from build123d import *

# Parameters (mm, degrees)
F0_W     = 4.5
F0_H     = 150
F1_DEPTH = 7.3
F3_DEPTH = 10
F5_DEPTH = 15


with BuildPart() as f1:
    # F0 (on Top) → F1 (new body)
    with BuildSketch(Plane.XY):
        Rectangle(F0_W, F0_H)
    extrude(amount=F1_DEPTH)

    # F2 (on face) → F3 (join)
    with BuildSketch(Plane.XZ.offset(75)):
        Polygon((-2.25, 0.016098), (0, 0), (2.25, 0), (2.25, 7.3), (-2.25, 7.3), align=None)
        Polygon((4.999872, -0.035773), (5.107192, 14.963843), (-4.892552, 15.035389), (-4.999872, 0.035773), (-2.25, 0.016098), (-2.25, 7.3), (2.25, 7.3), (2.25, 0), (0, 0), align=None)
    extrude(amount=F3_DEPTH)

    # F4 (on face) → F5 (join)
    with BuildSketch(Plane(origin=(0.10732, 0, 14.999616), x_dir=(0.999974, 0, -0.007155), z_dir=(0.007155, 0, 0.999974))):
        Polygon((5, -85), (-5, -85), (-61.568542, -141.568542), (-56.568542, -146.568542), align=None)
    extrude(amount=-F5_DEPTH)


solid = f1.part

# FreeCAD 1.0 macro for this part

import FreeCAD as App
import Part
import Sketcher

V = App.Vector
Q = App.Units.Quantity


def add_polygon(sketch, points):
    """Adds a closed chain of lines whose ends are joined by coincident constraints."""
    first, n = sketch.GeometryCount, len(points)
    for a, b in zip(points, points[1:] + points[:1]):
        sketch.addGeometry(Part.LineSegment(App.Vector(*a, 0), App.Vector(*b, 0)), False)
    for i in range(n):
        sketch.addConstraint(Sketcher.Constraint("Coincident", first + i, 2, first + (i + 1) % n, 1))

doc = App.newDocument("Part")
body = doc.addObject("PartDesign::Body", "Body")

# Sketch on XY plane
sketch1 = body.newObject("Sketcher::SketchObject", "Sketch")
sketch1.AttachmentSupport = (doc.getObject("XY_Plane"), [""])
sketch1.MapMode = "FlatFace"
add_polygon(sketch1, [(-2.2, 75), (-2.2, -75), (2.2, -75), (2.2, 75)])  # lines 0-3
sketch1.addConstraint([
    Sketcher.Constraint("Vertical", 0),
    Sketcher.Constraint("Horizontal", 1),
    Sketcher.Constraint("Vertical", 2),
    Sketcher.Constraint("Horizontal", 3),
    Sketcher.Constraint("Symmetric", 0, 2, 2, 2, -1, 1),
    Sketcher.Constraint("DistanceY", 0, 2, 0, 1, Q("150 mm")),
    Sketcher.Constraint("DistanceX", 1, 1, 1, 2, Q("4.5 mm")),
])
pad1 = body.newObject("PartDesign::Pad", "Pad")
pad1.Profile = sketch1
pad1.Length = 7.3

# Sketch on XZ plane
sketch2 = body.newObject("Sketcher::SketchObject", "Sketch001")
sketch2.AttachmentSupport = (doc.getObject("XZ_Plane"), [""])
sketch2.MapMode = "FlatFace"
sketch2.AttachmentOffset = App.Placement(V(0, 0, 75), App.Rotation())
add_polygon(sketch2, [(-2.2, 0), (0, 0), (5, 0), (5.1, 15), (-4.9, 15), (-5, 0)])  # lines 0-5
sketch2.addConstraint([
    Sketcher.Constraint("Coincident", 0, 2, -1, 1),
    Sketcher.Constraint("Symmetric", 1, 2, 4, 2, -1, 1),
    Sketcher.Constraint("Parallel", 0, 1),
    Sketcher.Constraint("Perpendicular", 1, 2),
    Sketcher.Constraint("Perpendicular", 2, 3),
    Sketcher.Constraint("Perpendicular", 3, 4),
    Sketcher.Constraint("Distance", 1, Q("5 mm")),
    Sketcher.Constraint("Distance", 2, Q("15 mm")),
    Sketcher.Constraint("DistanceX", 5, 2, -1, 1, Q("2.25 mm")),
    Sketcher.Constraint("DistanceY", -1, 1, 5, 2, Q("0.016098 mm")),
])
pad2 = body.newObject("PartDesign::Pad", "Pad001")
pad2.Profile = sketch2
pad2.Length = 10

# Sketch on an angled plane
sketch3 = body.newObject("Sketcher::SketchObject", "Sketch002")
sketch3.Placement = App.Placement(V(0.10732, 0, 14.999616), App.Rotation(V(0.999974403, 0, -0.007155003), V(0, 1.000000001, 0), V(0.007155003, 0, 0.999974403), "ZXY"))
add_polygon(sketch3, [(5, -85), (-5, -85), (-62, -142), (-57, -147)])  # lines 0-3
sketch3.addConstraint([
    Sketcher.Constraint("Horizontal", 0),
    Sketcher.Constraint("Perpendicular", 1, 2),
    Sketcher.Constraint("Perpendicular", 2, 3),
    Sketcher.Constraint("DistanceX", 0, 2, 0, 1, Q("10 mm")),
    Sketcher.Constraint("Angle", 1, Q("-135 deg")),
    Sketcher.Constraint("Distance", 1, Q("79.999999 mm")),
    Sketcher.Constraint("DistanceX", 0, 2, -1, 1, Q("5 mm")),
    Sketcher.Constraint("DistanceY", 0, 2, -1, 1, Q("85 mm")),
])
pad3 = body.newObject("PartDesign::Pad", "Pad002")
pad3.Profile = sketch3
pad3.Length = 15
pad3.Reversed = True

doc.recompute()
